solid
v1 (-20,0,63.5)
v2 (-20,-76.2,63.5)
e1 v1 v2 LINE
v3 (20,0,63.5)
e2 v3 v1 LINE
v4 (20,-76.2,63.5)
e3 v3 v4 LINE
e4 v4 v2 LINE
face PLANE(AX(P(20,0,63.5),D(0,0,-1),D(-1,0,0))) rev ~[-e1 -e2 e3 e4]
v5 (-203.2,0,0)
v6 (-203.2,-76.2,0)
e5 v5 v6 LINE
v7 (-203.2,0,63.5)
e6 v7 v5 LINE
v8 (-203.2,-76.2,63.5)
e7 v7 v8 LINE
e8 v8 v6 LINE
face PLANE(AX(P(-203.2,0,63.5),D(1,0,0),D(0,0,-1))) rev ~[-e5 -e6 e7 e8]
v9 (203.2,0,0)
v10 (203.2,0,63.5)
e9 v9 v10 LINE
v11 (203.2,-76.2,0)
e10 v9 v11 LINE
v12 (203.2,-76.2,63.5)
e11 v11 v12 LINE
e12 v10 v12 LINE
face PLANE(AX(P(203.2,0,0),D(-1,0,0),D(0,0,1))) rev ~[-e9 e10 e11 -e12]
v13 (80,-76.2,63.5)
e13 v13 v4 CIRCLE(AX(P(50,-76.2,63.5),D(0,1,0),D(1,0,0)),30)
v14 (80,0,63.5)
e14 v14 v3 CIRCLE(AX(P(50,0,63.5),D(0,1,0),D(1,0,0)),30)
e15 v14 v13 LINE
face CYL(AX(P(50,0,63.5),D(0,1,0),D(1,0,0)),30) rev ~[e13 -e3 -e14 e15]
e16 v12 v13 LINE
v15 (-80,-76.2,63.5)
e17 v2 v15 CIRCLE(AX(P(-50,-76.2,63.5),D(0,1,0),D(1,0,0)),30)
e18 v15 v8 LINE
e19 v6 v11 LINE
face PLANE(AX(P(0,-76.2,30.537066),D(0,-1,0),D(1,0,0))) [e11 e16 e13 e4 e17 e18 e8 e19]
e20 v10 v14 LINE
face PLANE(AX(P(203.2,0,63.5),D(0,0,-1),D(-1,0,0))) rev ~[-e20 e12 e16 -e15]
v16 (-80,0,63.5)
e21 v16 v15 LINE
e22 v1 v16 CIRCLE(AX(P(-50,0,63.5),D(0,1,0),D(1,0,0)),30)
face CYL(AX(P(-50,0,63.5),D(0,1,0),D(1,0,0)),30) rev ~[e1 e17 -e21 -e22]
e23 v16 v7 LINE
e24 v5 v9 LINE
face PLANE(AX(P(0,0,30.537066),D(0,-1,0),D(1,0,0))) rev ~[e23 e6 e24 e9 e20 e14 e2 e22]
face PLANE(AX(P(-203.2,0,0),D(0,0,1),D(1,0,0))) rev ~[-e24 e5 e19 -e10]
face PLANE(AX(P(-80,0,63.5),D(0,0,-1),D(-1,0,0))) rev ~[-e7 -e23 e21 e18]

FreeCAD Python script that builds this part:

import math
import FreeCAD as App
import Part
import Sketcher

V = App.Vector

doc = App.newDocument("Part")
body = doc.addObject("PartDesign::Body", "Body")

# Sketch on XZ plane
sketch1 = body.newObject("Sketcher::SketchObject", "Sketch")
sketch1.AttachmentSupport = (doc.getObject("XZ_Plane"), [""])
sketch1.MapMode = "FlatFace"
sketch1.addGeometry(Part.LineSegment(V(-203.2, 0, 0), V(203.2, 0, 0)), False)
sketch1.addGeometry(Part.LineSegment(V(203.2, 0, 0), V(203.2, 63.5, 0)), False)
sketch1.addGeometry(Part.LineSegment(V(203.2, 63.5, 0), V(80, 63.5, 0)), False)
sketch1.addGeometry(Part.ArcOfCircle(Part.Circle(V(50, 63.5, 0), V(0, 0, 1), 30), math.radians(180), math.radians(360)), False)
sketch1.addGeometry(Part.LineSegment(V(20, 63.5, 0), V(-20, 63.5, 0)), False)
sketch1.addGeometry(Part.ArcOfCircle(Part.Circle(V(-50, 63.5, 0), V(0, 0, 1), 30), math.radians(180), math.radians(360)), False)
sketch1.addGeometry(Part.LineSegment(V(-80, 63.5, 0), V(-203.2, 63.5, 0)), False)
sketch1.addGeometry(Part.LineSegment(V(-203.2, 63.5, 0), V(-203.2, 0, 0)), False)
sketch1.addConstraint(Sketcher.Constraint("Coincident", 0, 2, 1, 1))
sketch1.addConstraint(Sketcher.Constraint("Coincident", 1, 2, 2, 1))
sketch1.addConstraint(Sketcher.Constraint("Coincident", 2, 2, 3, 2))
sketch1.addConstraint(Sketcher.Constraint("Coincident", 3, 1, 4, 1))
sketch1.addConstraint(Sketcher.Constraint("Coincident", 4, 2, 5, 2))
sketch1.addConstraint(Sketcher.Constraint("Coincident", 5, 1, 6, 1))
sketch1.addConstraint(Sketcher.Constraint("Coincident", 6, 2, 7, 1))
sketch1.addConstraint(Sketcher.Constraint("Coincident", 7, 2, 0, 1))
sketch1.addConstraint(Sketcher.Constraint("Horizontal", 0))
sketch1.addConstraint(Sketcher.Constraint("Vertical", 1))
sketch1.addConstraint(Sketcher.Constraint("Horizontal", 2))
sketch1.addConstraint(Sketcher.Constraint("Horizontal", 4))
sketch1.addConstraint(Sketcher.Constraint("Horizontal", 6))
sketch1.addConstraint(Sketcher.Constraint("Vertical", 7))
sketch1.addConstraint(Sketcher.Constraint("Equal", 3, 5))
sketch1.addConstraint(Sketcher.Constraint("Symmetric", 0, 2, 7, 2, -1, 1))
sketch1.addConstraint(Sketcher.Constraint("Symmetric", 3, 3, 5, 3, -2))
sketch1.addConstraint(Sketcher.Constraint("Horizontal", 5, 3, 1, 2))
sketch1.addConstraint(Sketcher.Constraint("Horizontal", 2, 2, 3, 1))
sketch1.addConstraint(Sketcher.Constraint("Horizontal", 4, 2, 5, 1))
sketch1.addConstraint(Sketcher.Constraint("Radius", 3, 30.0))
sketch1.addConstraint(Sketcher.Constraint("DistanceX", 4, 2, 4, 1, 40.0))
sketch1.addConstraint(Sketcher.Constraint("DistanceX", 0, 1, 0, 2, 406.4))
sketch1.addConstraint(Sketcher.Constraint("DistanceY", 1, 1, 1, 2, 63.5))
pad1 = body.newObject("PartDesign::Pad", "Pad")
pad1.Profile = sketch1
pad1.Length = 76.2

doc.recompute()
